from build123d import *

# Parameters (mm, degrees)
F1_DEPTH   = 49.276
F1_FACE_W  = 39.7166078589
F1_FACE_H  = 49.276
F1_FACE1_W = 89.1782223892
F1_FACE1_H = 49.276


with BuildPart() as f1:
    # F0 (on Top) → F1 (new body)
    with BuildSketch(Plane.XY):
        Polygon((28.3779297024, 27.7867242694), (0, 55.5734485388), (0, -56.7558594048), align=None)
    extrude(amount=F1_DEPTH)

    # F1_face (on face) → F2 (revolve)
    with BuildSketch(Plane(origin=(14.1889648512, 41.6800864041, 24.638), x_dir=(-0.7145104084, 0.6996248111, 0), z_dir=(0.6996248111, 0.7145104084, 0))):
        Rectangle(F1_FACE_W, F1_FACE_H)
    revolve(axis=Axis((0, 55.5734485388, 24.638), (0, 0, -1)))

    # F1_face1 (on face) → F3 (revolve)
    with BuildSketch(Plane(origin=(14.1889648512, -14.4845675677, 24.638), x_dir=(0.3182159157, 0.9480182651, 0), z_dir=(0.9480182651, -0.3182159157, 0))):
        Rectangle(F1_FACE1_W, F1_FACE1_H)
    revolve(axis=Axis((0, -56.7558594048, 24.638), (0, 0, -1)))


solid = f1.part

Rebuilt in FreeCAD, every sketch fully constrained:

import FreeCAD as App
import Part
import Sketcher
Q = App.Units.Quantity

doc = App.newDocument("Part")
body = doc.addObject("PartDesign::Body", "Body")

sketch1 = doc.addObject("Sketcher::SketchObject", "Sketch")
body.addObject(sketch1)
sketch1.AttachmentSupport = (doc.XY_Plane, [""])
sketch1.MapMode = "FlatFace"
sketch1.addGeometry([
    Part.LineSegment(App.Vector(28, 28, 0), App.Vector(0, 56, 0)),
    Part.LineSegment(App.Vector(0, 56, 0), App.Vector(0, -57, 0)),
    Part.LineSegment(App.Vector(0, -57, 0), App.Vector(28, 28, 0)),
], False)
sketch1.addConstraint([
    Sketcher.Constraint("Coincident", 0, 2, 1, 1),
    Sketcher.Constraint("Coincident", 1, 2, 2, 1),
    Sketcher.Constraint("Coincident", 2, 2, 0, 1),
    Sketcher.Constraint("Vertical", 1),
    Sketcher.Constraint("PointOnObject", 0, 2, -2),
    Sketcher.Constraint("DistanceY", 1, 2, 1, 1, 112.329308),
    Sketcher.Constraint("DistanceY", -1, 1, 0, 2, 55.573449),
    Sketcher.Constraint("DistanceX", -1, 1, 2, 2, 28.37793),
    Sketcher.Constraint("Distance", 0, 39.716608),
])
pad1 = doc.addObject("PartDesign::Pad", "Pad")
body.addObject(pad1)
pad1.Profile = sketch1
pad1.Length = Q("1.94 in")

sketch2 = doc.addObject("Sketcher::SketchObject", "Sketch001")
body.addObject(sketch2)
sketch2.Placement = App.Placement(App.Vector(14.188965, 41.680086, 24.638), App.Rotation(App.Vector(-0.714510408, 0.699624811, 0), App.Vector(0, 0, 0.999999999), App.Vector(0.699624811, 0.714510408, 0), "ZXY"))
sketch2.addGeometry([
    Part.LineSegment(App.Vector(-20, 25, 0), App.Vector(-20, -25, 0)),
    Part.LineSegment(App.Vector(-20, -25, 0), App.Vector(20, -25, 0)),
    Part.LineSegment(App.Vector(20, -25, 0), App.Vector(20, 25, 0)),
    Part.LineSegment(App.Vector(20, 25, 0), App.Vector(-20, 25, 0)),
], False)
sketch2.addGeometry(Part.LineSegment(App.Vector(20, 25, 0), App.Vector(20, -25, 0)), True)
sketch2.addConstraint([
    Sketcher.Constraint("Coincident", 0, 2, 1, 1),
    Sketcher.Constraint("Coincident", 1, 2, 2, 1),
    Sketcher.Constraint("Coincident", 2, 2, 3, 1),
    Sketcher.Constraint("Coincident", 3, 2, 0, 1),
    Sketcher.Constraint("Vertical", 0),
    Sketcher.Constraint("Horizontal", 1),
    Sketcher.Constraint("Vertical", 2),
    Sketcher.Constraint("Horizontal", 3),
    Sketcher.Constraint("Vertical", 4),
    Sketcher.Constraint("Coincident", 4, 1, 2, 2),
    Sketcher.Constraint("Symmetric", 0, 2, 2, 2, -1, 1),
    Sketcher.Constraint("Horizontal", 0, 2, 4, 2),
    Sketcher.Constraint("DistanceY", 0, 2, 0, 1, Q("1.94 in")),
    Sketcher.Constraint("DistanceX", 1, 1, 1, 2, 39.716608),
])
revolution = doc.addObject("PartDesign::Revolution", "Revolution")
body.addObject(revolution)
revolution.Profile = sketch2
revolution.ReferenceAxis = (sketch2, ["Axis0"])
revolution.Angle = 360

sketch3 = doc.addObject("Sketcher::SketchObject", "Sketch002")
body.addObject(sketch3)
sketch3.Placement = App.Placement(App.Vector(14.188965, -14.484568, 24.638), App.Rotation(App.Vector(0.318215916, 0.948018265, 0), App.Vector(0, 0, 1), App.Vector(0.948018265, -0.318215916, 0), "ZXY"))
sketch3.addGeometry([
    Part.LineSegment(App.Vector(-45, 25, 0), App.Vector(-45, -25, 0)),
    Part.LineSegment(App.Vector(-45, -25, 0), App.Vector(45, -25, 0)),
    Part.LineSegment(App.Vector(45, -25, 0), App.Vector(45, 25, 0)),
    Part.LineSegment(App.Vector(45, 25, 0), App.Vector(-45, 25, 0)),
], False)
sketch3.addGeometry(Part.LineSegment(App.Vector(-45, 25, 0), App.Vector(-45, -25, 0)), True)
sketch3.addConstraint([
    Sketcher.Constraint("Coincident", 0, 2, 1, 1),
    Sketcher.Constraint("Coincident", 1, 2, 2, 1),
    Sketcher.Constraint("Coincident", 2, 2, 3, 1),
    Sketcher.Constraint("Coincident", 3, 2, 0, 1),
    Sketcher.Constraint("Vertical", 0),
    Sketcher.Constraint("Horizontal", 1),
    Sketcher.Constraint("Vertical", 2),
    Sketcher.Constraint("Horizontal", 3),
    Sketcher.Constraint("Vertical", 4),
    Sketcher.Constraint("Coincident", 4, 1, 3, 2),
    Sketcher.Constraint("Symmetric", 0, 2, 2, 2, -1, 1),
    Sketcher.Constraint("Horizontal", 1, 2, 4, 2),
    Sketcher.Constraint("DistanceY", 0, 2, 0, 1, Q("1.94 in")),
    Sketcher.Constraint("DistanceX", 1, 1, 1, 2, 89.178222),
])
revolution2 = doc.addObject("PartDesign::Revolution", "Revolution001")
body.addObject(revolution2)
revolution2.Profile = sketch3
revolution2.ReferenceAxis = (sketch3, ["Axis0"])
revolution2.Angle = 360

doc.recompute()
